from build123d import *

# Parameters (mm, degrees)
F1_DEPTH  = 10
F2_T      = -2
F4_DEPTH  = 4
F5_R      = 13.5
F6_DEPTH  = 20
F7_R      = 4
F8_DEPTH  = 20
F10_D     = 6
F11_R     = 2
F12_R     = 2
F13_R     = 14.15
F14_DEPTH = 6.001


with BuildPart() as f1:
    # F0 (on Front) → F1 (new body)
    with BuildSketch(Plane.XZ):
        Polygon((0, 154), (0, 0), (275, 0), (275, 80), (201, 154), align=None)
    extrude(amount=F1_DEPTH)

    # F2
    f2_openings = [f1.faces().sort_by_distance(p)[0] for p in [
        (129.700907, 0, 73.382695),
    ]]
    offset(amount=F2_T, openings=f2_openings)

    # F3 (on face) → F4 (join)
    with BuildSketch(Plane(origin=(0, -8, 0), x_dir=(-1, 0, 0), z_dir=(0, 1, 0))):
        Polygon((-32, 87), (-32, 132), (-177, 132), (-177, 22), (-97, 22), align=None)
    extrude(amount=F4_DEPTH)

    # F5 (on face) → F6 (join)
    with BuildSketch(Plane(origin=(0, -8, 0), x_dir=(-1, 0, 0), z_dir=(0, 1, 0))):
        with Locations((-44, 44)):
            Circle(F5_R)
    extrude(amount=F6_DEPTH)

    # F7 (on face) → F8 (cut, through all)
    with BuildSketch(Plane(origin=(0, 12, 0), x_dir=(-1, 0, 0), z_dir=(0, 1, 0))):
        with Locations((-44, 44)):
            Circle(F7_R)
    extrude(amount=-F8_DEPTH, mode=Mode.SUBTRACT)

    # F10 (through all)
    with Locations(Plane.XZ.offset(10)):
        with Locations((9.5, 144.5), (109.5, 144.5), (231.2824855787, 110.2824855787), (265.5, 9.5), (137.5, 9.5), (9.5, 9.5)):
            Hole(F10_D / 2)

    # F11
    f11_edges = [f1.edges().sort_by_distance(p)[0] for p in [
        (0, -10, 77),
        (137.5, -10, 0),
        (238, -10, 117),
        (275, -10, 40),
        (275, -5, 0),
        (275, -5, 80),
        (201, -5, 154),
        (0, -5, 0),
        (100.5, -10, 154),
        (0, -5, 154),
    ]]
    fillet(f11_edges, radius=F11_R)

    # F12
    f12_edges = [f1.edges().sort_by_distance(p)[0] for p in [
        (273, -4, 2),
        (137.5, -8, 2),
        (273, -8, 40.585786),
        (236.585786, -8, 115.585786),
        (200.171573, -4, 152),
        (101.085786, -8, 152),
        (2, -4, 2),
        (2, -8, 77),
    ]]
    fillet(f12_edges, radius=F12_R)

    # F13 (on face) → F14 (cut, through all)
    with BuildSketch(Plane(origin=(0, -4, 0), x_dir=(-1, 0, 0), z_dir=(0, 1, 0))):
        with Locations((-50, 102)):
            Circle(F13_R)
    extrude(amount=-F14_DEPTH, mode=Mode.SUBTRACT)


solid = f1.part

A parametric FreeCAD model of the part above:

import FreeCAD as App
import Part
import Sketcher


def edges_at(feature, points):
    """Names of the edges that pass closest to the given points."""
    edges = feature.Shape.Edges
    near = lambda p: min(range(len(edges)), key=lambda i: edges[i].distToShape(Part.Vertex(*p))[0])
    return sorted({f"Edge{near(p) + 1}" for p in points})


def faces_at(feature, points):
    """Names of the faces that lie closest to the given points."""
    faces = feature.Shape.Faces
    near = lambda p: min(range(len(faces)), key=lambda i: faces[i].distToShape(Part.Vertex(*p))[0])
    return sorted({f"Face{near(p) + 1}" for p in points})

doc = App.newDocument("Part")
body = doc.addObject("PartDesign::Body", "Body")

# Sketch on XZ plane
sketch1 = body.newObject("Sketcher::SketchObject", "Sketch")
sketch1.AttachmentSupport = (doc.getObject("XZ_Plane"), [""])
sketch1.MapMode = "FlatFace"
sketch1.addGeometry(Part.LineSegment(App.Vector(0, 154, 0), App.Vector(0, 0, 0)), False)
sketch1.addGeometry(Part.LineSegment(App.Vector(0, 0, 0), App.Vector(275, 0, 0)), False)
sketch1.addGeometry(Part.LineSegment(App.Vector(275, 0, 0), App.Vector(275, 80, 0)), False)
sketch1.addGeometry(Part.LineSegment(App.Vector(275, 80, 0), App.Vector(201, 154, 0)), False)
sketch1.addGeometry(Part.LineSegment(App.Vector(201, 154, 0), App.Vector(0, 154, 0)), False)
sketch1.addConstraint(Sketcher.Constraint("Coincident", 0, 2, 1, 1))
sketch1.addConstraint(Sketcher.Constraint("Coincident", 1, 2, 2, 1))
sketch1.addConstraint(Sketcher.Constraint("Coincident", 2, 2, 3, 1))
sketch1.addConstraint(Sketcher.Constraint("Coincident", 3, 2, 4, 1))
sketch1.addConstraint(Sketcher.Constraint("Coincident", 4, 2, 0, 1))
sketch1.addConstraint(Sketcher.Constraint("Vertical", 0))
sketch1.addConstraint(Sketcher.Constraint("Horizontal", 1))
sketch1.addConstraint(Sketcher.Constraint("Vertical", 2))
sketch1.addConstraint(Sketcher.Constraint("Horizontal", 4))
sketch1.addConstraint(Sketcher.Constraint("Coincident", 0, 2, -1, 1))
sketch1.addConstraint(Sketcher.Constraint("DistanceX", 1, 1, 1, 2, 275.0))
sketch1.addConstraint(Sketcher.Constraint("DistanceX", 4, 2, 4, 1, 201.0))
sketch1.addConstraint(Sketcher.Constraint("DistanceY", 0, 2, 0, 1, 154.0))
sketch1.addConstraint(Sketcher.Constraint("DistanceY", 2, 1, 2, 2, 80.0))
pad1 = body.newObject("PartDesign::Pad", "Pad")
pad1.Profile = sketch1
pad1.Length = 10
doc.recompute()

thickness = body.newObject("PartDesign::Thickness", "Thickness")
thickness.Base = (pad1, faces_at(pad1, [(137.5, 0, 77)]))
thickness.Value = 2
thickness.Reversed = True
thickness.Join = "Arc"

# Sketch on XZ plane
sketch2 = body.newObject("Sketcher::SketchObject", "Sketch001")
sketch2.AttachmentSupport = (doc.getObject("XZ_Plane"), [""])
sketch2.MapMode = "FlatFace"
sketch2.AttachmentOffset = App.Placement(App.Vector(0, 0, 8), App.Rotation())
sketch2.addGeometry(Part.LineSegment(App.Vector(32, 87, 0), App.Vector(32, 132, 0)), False)
sketch2.addGeometry(Part.LineSegment(App.Vector(32, 132, 0), App.Vector(177, 132, 0)), False)
sketch2.addGeometry(Part.LineSegment(App.Vector(177, 132, 0), App.Vector(177, 22, 0)), False)
sketch2.addGeometry(Part.LineSegment(App.Vector(177, 22, 0), App.Vector(97, 22, 0)), False)
sketch2.addGeometry(Part.LineSegment(App.Vector(97, 22, 0), App.Vector(32, 87, 0)), False)
sketch2.addConstraint(Sketcher.Constraint("Coincident", 0, 2, 1, 1))
sketch2.addConstraint(Sketcher.Constraint("Coincident", 1, 2, 2, 1))
sketch2.addConstraint(Sketcher.Constraint("Coincident", 2, 2, 3, 1))
sketch2.addConstraint(Sketcher.Constraint("Coincident", 3, 2, 4, 1))
sketch2.addConstraint(Sketcher.Constraint("Coincident", 4, 2, 0, 1))
sketch2.addConstraint(Sketcher.Constraint("Vertical", 0))
sketch2.addConstraint(Sketcher.Constraint("Horizontal", 1))
sketch2.addConstraint(Sketcher.Constraint("Vertical", 2))
sketch2.addConstraint(Sketcher.Constraint("Horizontal", 3))
sketch2.addConstraint(Sketcher.Constraint("DistanceX", 1, 1, 1, 2, 145.0))
sketch2.addConstraint(Sketcher.Constraint("DistanceX", 3, 2, 3, 1, 80.0))
sketch2.addConstraint(Sketcher.Constraint("DistanceY", 0, 1, 0, 2, 45.0))
sketch2.addConstraint(Sketcher.Constraint("DistanceY", 2, 2, 2, 1, 110.0))
sketch2.addConstraint(Sketcher.Constraint("DistanceX", -1, 1, 0, 2, 32.0))
sketch2.addConstraint(Sketcher.Constraint("DistanceY", -1, 1, 0, 2, 132.0))
pad2 = body.newObject("PartDesign::Pad", "Pad001")
pad2.Profile = sketch2
pad2.Length = 4
pad2.Reversed = True

# Sketch on XZ plane
sketch3 = body.newObject("Sketcher::SketchObject", "Sketch002")
sketch3.AttachmentSupport = (doc.getObject("XZ_Plane"), [""])
sketch3.MapMode = "FlatFace"
sketch3.AttachmentOffset = App.Placement(App.Vector(0, 0, 8), App.Rotation())
sketch3.addGeometry(Part.Circle(App.Vector(44, 44, 0), App.Vector(0, 0, 1), 14), False)
sketch3.addConstraint(Sketcher.Constraint("Diameter", 0, 27.0))
sketch3.addConstraint(Sketcher.Constraint("DistanceX", -1, 1, 0, 3, 44.0))
sketch3.addConstraint(Sketcher.Constraint("DistanceY", -1, 1, 0, 3, 44.0))
pad3 = body.newObject("PartDesign::Pad", "Pad002")
pad3.Profile = sketch3
pad3.Length = 20
pad3.Reversed = True

# Sketch on XZ plane
sketch4 = body.newObject("Sketcher::SketchObject", "Sketch003")
sketch4.AttachmentSupport = (doc.getObject("XZ_Plane"), [""])
sketch4.MapMode = "FlatFace"
sketch4.AttachmentOffset = App.Placement(App.Vector(0, 0, -12), App.Rotation())
sketch4.addGeometry(Part.Circle(App.Vector(44, 44, 0), App.Vector(0, 0, 1), 4), False)
sketch4.addConstraint(Sketcher.Constraint("Diameter", 0, 8.0))
sketch4.addConstraint(Sketcher.Constraint("DistanceX", -1, 1, 0, 3, 44.0))
sketch4.addConstraint(Sketcher.Constraint("DistanceY", -1, 1, 0, 3, 44.0))
pocket1 = body.newObject("PartDesign::Pocket", "Pocket")
pocket1.Profile = sketch4
pocket1.Length = 20
pocket1.Reversed = True

# Sketch on XZ plane
sketch5 = body.newObject("Sketcher::SketchObject", "Sketch004")
sketch5.AttachmentSupport = (doc.getObject("XZ_Plane"), [""])
sketch5.MapMode = "FlatFace"
sketch5.AttachmentOffset = App.Placement(App.Vector(0, 0, 10), App.Rotation())
sketch5.addGeometry(Part.Circle(App.Vector(9.5, 144.5, 0), App.Vector(0, 0, 1), 3), False)
sketch5.addGeometry(Part.Circle(App.Vector(109.5, 144.5, 0), App.Vector(0, 0, 1), 3), False)
sketch5.addGeometry(Part.Circle(App.Vector(231.3, 110.3, 0), App.Vector(0, 0, 1), 3), False)
sketch5.addGeometry(Part.Circle(App.Vector(265.5, 9.5, 0), App.Vector(0, 0, 1), 3), False)
sketch5.addGeometry(Part.Circle(App.Vector(137.5, 9.5, 0), App.Vector(0, 0, 1), 3), False)
sketch5.addGeometry(Part.Circle(App.Vector(9.5, 9.5, 0), App.Vector(0, 0, 1), 3), False)
sketch5.addConstraint(Sketcher.Constraint("Equal", 0, 1))
sketch5.addConstraint(Sketcher.Constraint("Equal", 1, 2))
sketch5.addConstraint(Sketcher.Constraint("Equal", 2, 3))
sketch5.addConstraint(Sketcher.Constraint("Equal", 3, 4))
sketch5.addConstraint(Sketcher.Constraint("Equal", 4, 5))
sketch5.addConstraint(Sketcher.Constraint("Horizontal", 0, 3, 1, 3))
sketch5.addConstraint(Sketcher.Constraint("Horizontal", 3, 3, 4, 3))
sketch5.addConstraint(Sketcher.Constraint("Horizontal", 4, 3, 5, 3))
sketch5.addConstraint(Sketcher.Constraint("Vertical", 0, 3, 5, 3))
sketch5.addConstraint(Sketcher.Constraint("Diameter", 0, 6.0))
sketch5.addConstraint(Sketcher.Constraint("DistanceX", 0, 3, 1, 3, 100.0))
sketch5.addConstraint(Sketcher.Constraint("DistanceX", 1, 3, 3, 3, 156.0))
sketch5.addConstraint(Sketcher.Constraint("DistanceY", 3, 3, 1, 3, 135.0))
sketch5.addConstraint(Sketcher.Constraint("DistanceX", 4, 3, 3, 3, 128.0))
sketch5.addConstraint(Sketcher.Constraint("DistanceX", -1, 1, 0, 3, 9.5))
sketch5.addConstraint(Sketcher.Constraint("DistanceY", -1, 1, 0, 3, 144.5))
sketch5.addConstraint(Sketcher.Constraint("DistanceX", -1, 1, 2, 3, 231.282486))
sketch5.addConstraint(Sketcher.Constraint("DistanceY", -1, 1, 2, 3, 110.282486))
doc.recompute()
hole = body.newObject("PartDesign::Hole", "Hole")
hole.Profile = sketch5
hole.ThreadType = "None"
hole.Diameter = 6
hole.DepthType = "ThroughAll"
doc.recompute()

fillet = body.newObject("PartDesign::Fillet", "Fillet")
fillet.Base = (hole, edges_at(hole, [
    (0, -10, 77),
    (137.5, -10, 0),
    (238, -10, 117),
    (275, -10, 40),
    (275, -5, 0),
    (275, -5, 80),
    (201, -5, 154),
    (0, -5, 0),
    (100.5, -10, 154),
    (0, -5, 154),
]))
fillet.Radius = 2
doc.recompute()

fillet2 = body.newObject("PartDesign::Fillet", "Fillet001")
fillet2.Base = (fillet, edges_at(fillet, [
    (273, -4, 2),
    (137.5, -8, 2),
    (273, -8, 40.586),
    (236.586, -8, 115.586),
    (200.172, -4, 152),
    (101.086, -8, 152),
    (2, -4, 2),
    (2, -8, 77),
]))
fillet2.Radius = 2

# Sketch on XZ plane
sketch6 = body.newObject("Sketcher::SketchObject", "Sketch005")
sketch6.AttachmentSupport = (doc.getObject("XZ_Plane"), [""])
sketch6.MapMode = "FlatFace"
sketch6.AttachmentOffset = App.Placement(App.Vector(0, 0, 4), App.Rotation())
sketch6.addGeometry(Part.Circle(App.Vector(50, 102, 0), App.Vector(0, 0, 1), 14), False)
sketch6.addConstraint(Sketcher.Constraint("Diameter", 0, 28.3))
sketch6.addConstraint(Sketcher.Constraint("DistanceX", -1, 1, 0, 3, 50.0))
sketch6.addConstraint(Sketcher.Constraint("DistanceY", -1, 1, 0, 3, 102.0))
pocket2 = body.newObject("PartDesign::Pocket", "Pocket001")
pocket2.Profile = sketch6
pocket2.Type = "ThroughAll"
pocket2.Reversed = True

doc.recompute()
